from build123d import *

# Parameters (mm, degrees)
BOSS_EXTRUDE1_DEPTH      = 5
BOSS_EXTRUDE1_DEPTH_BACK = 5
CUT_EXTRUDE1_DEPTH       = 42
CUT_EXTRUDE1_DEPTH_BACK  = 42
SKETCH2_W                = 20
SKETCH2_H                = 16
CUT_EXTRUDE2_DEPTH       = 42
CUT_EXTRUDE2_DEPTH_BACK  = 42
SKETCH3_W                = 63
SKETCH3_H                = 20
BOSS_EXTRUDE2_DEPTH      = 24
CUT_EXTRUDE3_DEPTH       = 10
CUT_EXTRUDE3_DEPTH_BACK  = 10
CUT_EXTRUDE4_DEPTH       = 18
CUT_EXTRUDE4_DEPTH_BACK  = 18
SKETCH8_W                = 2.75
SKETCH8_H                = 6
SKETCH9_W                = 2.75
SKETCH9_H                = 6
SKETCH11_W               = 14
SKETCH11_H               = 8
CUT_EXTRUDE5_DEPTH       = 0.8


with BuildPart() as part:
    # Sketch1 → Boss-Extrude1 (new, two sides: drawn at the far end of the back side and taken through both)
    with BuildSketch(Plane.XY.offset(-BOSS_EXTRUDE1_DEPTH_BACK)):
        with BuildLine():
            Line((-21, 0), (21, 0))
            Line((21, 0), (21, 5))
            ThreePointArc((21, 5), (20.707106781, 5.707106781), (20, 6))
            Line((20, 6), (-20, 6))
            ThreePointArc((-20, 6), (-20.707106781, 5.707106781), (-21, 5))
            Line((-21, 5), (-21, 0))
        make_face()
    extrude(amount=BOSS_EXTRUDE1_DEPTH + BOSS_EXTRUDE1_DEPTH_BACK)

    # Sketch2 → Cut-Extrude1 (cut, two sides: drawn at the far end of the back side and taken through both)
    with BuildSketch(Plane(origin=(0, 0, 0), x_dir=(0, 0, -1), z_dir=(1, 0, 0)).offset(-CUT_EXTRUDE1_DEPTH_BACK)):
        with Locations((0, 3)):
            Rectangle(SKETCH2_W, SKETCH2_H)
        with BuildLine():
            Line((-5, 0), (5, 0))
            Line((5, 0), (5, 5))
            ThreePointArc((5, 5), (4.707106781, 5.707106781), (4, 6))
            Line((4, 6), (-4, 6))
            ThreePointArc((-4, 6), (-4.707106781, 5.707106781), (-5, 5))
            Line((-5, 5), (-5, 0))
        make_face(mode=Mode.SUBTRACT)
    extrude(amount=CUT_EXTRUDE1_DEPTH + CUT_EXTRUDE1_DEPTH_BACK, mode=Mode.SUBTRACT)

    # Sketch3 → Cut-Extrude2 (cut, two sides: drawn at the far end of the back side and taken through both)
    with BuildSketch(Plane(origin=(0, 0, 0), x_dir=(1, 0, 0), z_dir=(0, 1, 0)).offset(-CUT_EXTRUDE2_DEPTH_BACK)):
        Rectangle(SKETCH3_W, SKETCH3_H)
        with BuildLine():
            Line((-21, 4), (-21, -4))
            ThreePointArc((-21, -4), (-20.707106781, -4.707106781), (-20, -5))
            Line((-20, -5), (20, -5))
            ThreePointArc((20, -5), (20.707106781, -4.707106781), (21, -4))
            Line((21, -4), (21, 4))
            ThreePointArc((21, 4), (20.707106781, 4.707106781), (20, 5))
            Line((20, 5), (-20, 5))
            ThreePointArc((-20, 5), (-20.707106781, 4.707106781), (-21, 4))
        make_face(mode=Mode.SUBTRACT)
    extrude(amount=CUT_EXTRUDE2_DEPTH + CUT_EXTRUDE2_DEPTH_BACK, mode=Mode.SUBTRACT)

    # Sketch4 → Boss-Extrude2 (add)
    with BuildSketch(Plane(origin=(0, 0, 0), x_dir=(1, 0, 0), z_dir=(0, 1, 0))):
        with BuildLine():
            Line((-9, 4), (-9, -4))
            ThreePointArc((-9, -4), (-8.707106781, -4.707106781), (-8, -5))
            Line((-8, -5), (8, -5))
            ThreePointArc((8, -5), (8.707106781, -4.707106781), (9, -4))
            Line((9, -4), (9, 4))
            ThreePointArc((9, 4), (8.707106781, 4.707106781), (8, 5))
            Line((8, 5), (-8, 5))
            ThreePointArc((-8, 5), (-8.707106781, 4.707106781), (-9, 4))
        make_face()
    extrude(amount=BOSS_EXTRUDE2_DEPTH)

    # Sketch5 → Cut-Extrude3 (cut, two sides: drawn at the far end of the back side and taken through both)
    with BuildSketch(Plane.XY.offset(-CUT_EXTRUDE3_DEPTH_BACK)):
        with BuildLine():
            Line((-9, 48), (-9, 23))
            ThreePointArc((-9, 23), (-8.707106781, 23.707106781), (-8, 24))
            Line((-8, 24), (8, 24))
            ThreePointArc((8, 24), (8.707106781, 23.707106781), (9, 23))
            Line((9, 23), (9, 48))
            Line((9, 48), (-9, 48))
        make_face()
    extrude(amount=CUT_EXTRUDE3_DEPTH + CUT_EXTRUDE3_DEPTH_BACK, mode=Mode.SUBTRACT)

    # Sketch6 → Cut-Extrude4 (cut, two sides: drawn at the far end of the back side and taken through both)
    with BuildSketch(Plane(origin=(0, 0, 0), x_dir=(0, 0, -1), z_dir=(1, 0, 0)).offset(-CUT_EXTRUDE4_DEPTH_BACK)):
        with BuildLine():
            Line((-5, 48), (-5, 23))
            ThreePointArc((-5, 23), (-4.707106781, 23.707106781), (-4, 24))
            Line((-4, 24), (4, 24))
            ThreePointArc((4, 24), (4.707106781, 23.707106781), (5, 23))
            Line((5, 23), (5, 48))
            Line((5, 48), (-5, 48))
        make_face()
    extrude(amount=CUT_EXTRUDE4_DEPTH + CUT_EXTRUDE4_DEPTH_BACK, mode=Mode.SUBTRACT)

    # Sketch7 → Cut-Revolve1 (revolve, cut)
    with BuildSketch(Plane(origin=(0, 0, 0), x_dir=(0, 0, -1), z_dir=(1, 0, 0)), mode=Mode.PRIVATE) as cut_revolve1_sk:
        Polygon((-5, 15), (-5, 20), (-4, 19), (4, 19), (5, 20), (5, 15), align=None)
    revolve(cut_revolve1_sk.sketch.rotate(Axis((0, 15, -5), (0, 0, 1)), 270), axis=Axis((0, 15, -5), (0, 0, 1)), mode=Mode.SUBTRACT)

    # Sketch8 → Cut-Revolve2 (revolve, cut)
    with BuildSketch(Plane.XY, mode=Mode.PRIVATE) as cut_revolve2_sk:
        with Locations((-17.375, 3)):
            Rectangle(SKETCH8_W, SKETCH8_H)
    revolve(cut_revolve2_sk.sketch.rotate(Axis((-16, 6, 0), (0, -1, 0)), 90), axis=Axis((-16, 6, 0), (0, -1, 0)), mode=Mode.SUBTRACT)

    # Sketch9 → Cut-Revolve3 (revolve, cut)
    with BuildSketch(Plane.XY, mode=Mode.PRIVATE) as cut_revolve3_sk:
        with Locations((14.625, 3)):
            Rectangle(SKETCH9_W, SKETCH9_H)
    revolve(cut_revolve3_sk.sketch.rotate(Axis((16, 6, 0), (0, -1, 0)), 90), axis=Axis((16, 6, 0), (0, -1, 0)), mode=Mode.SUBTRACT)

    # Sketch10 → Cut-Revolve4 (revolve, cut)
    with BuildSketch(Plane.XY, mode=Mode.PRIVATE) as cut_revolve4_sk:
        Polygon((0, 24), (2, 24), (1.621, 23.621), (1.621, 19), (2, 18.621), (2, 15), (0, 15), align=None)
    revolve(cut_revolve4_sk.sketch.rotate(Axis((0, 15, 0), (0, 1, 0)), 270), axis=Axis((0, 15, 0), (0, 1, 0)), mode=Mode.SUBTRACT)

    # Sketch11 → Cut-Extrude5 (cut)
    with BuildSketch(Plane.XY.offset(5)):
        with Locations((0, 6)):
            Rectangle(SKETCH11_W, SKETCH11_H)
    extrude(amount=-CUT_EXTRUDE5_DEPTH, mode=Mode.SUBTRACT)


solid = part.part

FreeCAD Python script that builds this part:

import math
import FreeCAD as App
import Part
import Sketcher

V = App.Vector


def add_polygon(sketch, points):
    """Adds a closed chain of lines whose ends are joined by coincident constraints."""
    first, n = sketch.GeometryCount, len(points)
    for a, b in zip(points, points[1:] + points[:1]):
        sketch.addGeometry(Part.LineSegment(App.Vector(*a, 0), App.Vector(*b, 0)), False)
    for i in range(n):
        sketch.addConstraint(Sketcher.Constraint("Coincident", first + i, 2, first + (i + 1) % n, 1))

doc = App.newDocument("Part")
params = doc.addObject("Spreadsheet::Sheet", "Params")
for row, (alias, value) in enumerate([
    ("sketch1_radius", "1 mm"),
    ("sketch1_width", "42 mm"),
    ("sketch1_height", "5 mm"),
    ("pad1_length", "5 mm"),
    ("pad1_length2", "5 mm"),
    ("sketch2_radius", "1 mm"),
    ("sketch2_width", "16 mm"),
    ("sketch2_width2", "5 mm"),
    ("sketch2_height", "20 mm"),
    ("sketch2_height2", "10 mm"),
    ("sketch3_radius", "1 mm"),
    ("sketch3_width", "63 mm"),
    ("sketch3_width2", "40 mm"),
    ("sketch3_height", "20 mm"),
    ("sketch3_height2", "8 mm"),
    ("sketch4_radius", "1 mm"),
    ("sketch4_width", "16 mm"),
    ("sketch4_height", "8 mm"),
    ("pad2_length", "24 mm"),
    ("sketch5_radius", "1 mm"),
    ("sketch5_width", "16 mm"),
    ("sketch5_height", "25 mm"),
    ("sketch6_radius", "1 mm"),
    ("sketch6_width", "25 mm"),
    ("sketch6_height", "8 mm"),
    ("sketch7_width", "5 mm"),
    ("sketch7_height", "10 mm"),
    ("sketch7_height2", "8 mm"),
    ("groove_angle", "360 deg"),
    ("sketch8_height", "6 mm"),
    ("sketch8_width", "2.75 mm"),
    ("groove2_angle", "360 deg"),
    ("sketch9_height", "6 mm"),
    ("sketch9_width", "2.75 mm"),
    ("groove3_angle", "360 deg"),
    ("sketch10_width", "2 mm"),
    ("sketch10_height", "9 mm"),
    ("groove4_angle", "360 deg"),
    ("sketch11_width", "14 mm"),
    ("sketch11_height", "8 mm"),
    ("pocket5_length", "0.8 mm"),
], start=1):
    params.set(f"A{row}", alias)
    params.set(f"B{row}", "=" + value)
    params.setAlias(f"B{row}", alias)

body = doc.addObject("PartDesign::Body", "Body")

# Sketch on XY plane
sketch1 = body.newObject("Sketcher::SketchObject", "Sketch")
sketch1.AttachmentSupport = (doc.getObject("XY_Plane"), [""])
sketch1.MapMode = "FlatFace"
sketch1.addGeometry([
    Part.LineSegment(V(-21, 0, 0), V(21, 0, 0)),  # 0
    Part.LineSegment(V(21, 0, 0), V(21, 5, 0)),  # 1
    Part.ArcOfCircle(Part.Circle(V(20, 5, 0), V(0, 0, 1), 1), math.radians(0), math.radians(90)),  # 2
    Part.LineSegment(V(20, 6, 0), V(-20, 6, 0)),  # 3
    Part.ArcOfCircle(Part.Circle(V(-20, 5, 0), V(0, 0, 1), 1), math.radians(90), math.radians(180)),  # 4
    Part.LineSegment(V(-21, 5, 0), V(-21, 0, 0)),  # 5
], False)
sketch1.addConstraint([
    Sketcher.Constraint("Coincident", 0, 2, 1, 1),
    Sketcher.Constraint("Tangent", 1, 2, 2, 1),
    Sketcher.Constraint("Tangent", 2, 2, 3, 1),
    Sketcher.Constraint("Tangent", 3, 2, 4, 1),
    Sketcher.Constraint("Tangent", 4, 2, 5, 1),
    Sketcher.Constraint("Coincident", 5, 2, 0, 1),
    Sketcher.Constraint("Horizontal", 0),
    Sketcher.Constraint("Vertical", 1),
    Sketcher.Constraint("Horizontal", 3),
    Sketcher.Constraint("Vertical", 5),
    Sketcher.Constraint("Equal", 2, 4),
    Sketcher.Constraint("Symmetric", 0, 2, 5, 2, -1, 1),
    Sketcher.Constraint("Radius", 2, 1.0),
    Sketcher.Constraint("DistanceX", 0, 1, 0, 2, 42.0),
    Sketcher.Constraint("DistanceY", 1, 1, 1, 2, 5.0),
])
sketch1.setExpression("Constraints[12]", "Params.sketch1_radius")
sketch1.setExpression("Constraints[13]", "Params.sketch1_width")
sketch1.setExpression("Constraints[14]", "Params.sketch1_height")
pad1 = body.newObject("PartDesign::Pad", "Pad")
pad1.Profile = sketch1
pad1.Type = "TwoLengths"
pad1.setExpression("Length", "Params.pad1_length")
pad1.setExpression("Length2", "Params.pad1_length2")

# Sketch on YZ plane
sketch2 = body.newObject("Sketcher::SketchObject", "Sketch001")
sketch2.AttachmentSupport = (doc.getObject("YZ_Plane"), [""])
sketch2.MapMode = "FlatFace"
add_polygon(sketch2, [(11, 10), (-5, 10), (-5, -10), (11, -10)])  # lines 0-3
sketch2.addGeometry(Part.LineSegment(V(0, -5, 0), V(0, 5, 0)), False)  # 4
sketch2.addGeometry(Part.LineSegment(V(0, 5, 0), V(5, 5, 0)), False)  # 5
sketch2.addGeometry(Part.ArcOfCircle(Part.Circle(V(5, 4, 0), V(0, 0, 1), 1), math.radians(0), math.radians(90)), False)  # 6
sketch2.addGeometry(Part.LineSegment(V(6, 4, 0), V(6, -4, 0)), False)  # 7
sketch2.addGeometry(Part.ArcOfCircle(Part.Circle(V(5, -4, 0), V(0, 0, 1), 1), math.radians(-90), math.radians(0)), False)  # 8
sketch2.addGeometry(Part.LineSegment(V(5, -5, 0), V(0, -5, 0)), False)  # 9
sketch2.addConstraint([
    Sketcher.Constraint("Coincident", 4, 2, 5, 1),
    Sketcher.Constraint("Tangent", 5, 2, 6, 2),
    Sketcher.Constraint("Tangent", 6, 1, 7, 1),
    Sketcher.Constraint("Tangent", 7, 2, 8, 2),
    Sketcher.Constraint("Tangent", 8, 1, 9, 1),
    Sketcher.Constraint("Coincident", 9, 2, 4, 1),
    Sketcher.Constraint("Horizontal", 0),
    Sketcher.Constraint("Vertical", 1),
    Sketcher.Constraint("Horizontal", 2),
    Sketcher.Constraint("Vertical", 3),
    Sketcher.Constraint("Vertical", 4),
    Sketcher.Constraint("Horizontal", 5),
    Sketcher.Constraint("Vertical", 7),
    Sketcher.Constraint("Horizontal", 9),
    Sketcher.Constraint("Equal", 6, 8),
    Sketcher.Constraint("Symmetric", 4, 2, 9, 2, -1, 1),
    Sketcher.Constraint("Radius", 6, 1.0),
    Sketcher.Constraint("DistanceX", 0, 2, 0, 1, 16.0),
    Sketcher.Constraint("DistanceX", 5, 1, 5, 2, 5.0),
    Sketcher.Constraint("DistanceY", 1, 2, 1, 1, 20.0),
    Sketcher.Constraint("DistanceY", 4, 1, 4, 2, 10.0),
    Sketcher.Constraint("DistanceX", 0, 2, -1, 1, 5.0),
    Sketcher.Constraint("DistanceY", -1, 1, 0, 2, 10.0),
])
sketch2.setExpression("Constraints[20]", "Params.sketch2_radius")
sketch2.setExpression("Constraints[21]", "Params.sketch2_width")
sketch2.setExpression("Constraints[22]", "Params.sketch2_width2")
sketch2.setExpression("Constraints[23]", "Params.sketch2_height")
sketch2.setExpression("Constraints[24]", "Params.sketch2_height2")
pocket1 = body.newObject("PartDesign::Pocket", "Pocket")
pocket1.Profile = sketch2
pocket1.Type = "ThroughAll"
pocket1.Midplane = True

# Sketch on XZ plane
sketch3 = body.newObject("Sketcher::SketchObject", "Sketch002")
sketch3.AttachmentSupport = (doc.getObject("XZ_Plane"), [""])
sketch3.MapMode = "FlatFace"
add_polygon(sketch3, [(-31.5, -10), (-31.5, 10), (31.5, 10), (31.5, -10)])  # lines 0-3
sketch3.addGeometry(Part.LineSegment(V(-21, 4, 0), V(-21, -4, 0)), False)  # 4
sketch3.addGeometry(Part.ArcOfCircle(Part.Circle(V(-20, -4, 0), V(0, 0, 1), 1), math.radians(-180), math.radians(-90)), False)  # 5
sketch3.addGeometry(Part.LineSegment(V(-20, -5, 0), V(20, -5, 0)), False)  # 6
sketch3.addGeometry(Part.ArcOfCircle(Part.Circle(V(20, -4, 0), V(0, 0, 1), 1), math.radians(-90), math.radians(0)), False)  # 7
sketch3.addGeometry(Part.LineSegment(V(21, -4, 0), V(21, 4, 0)), False)  # 8
sketch3.addGeometry(Part.ArcOfCircle(Part.Circle(V(20, 4, 0), V(0, 0, 1), 1), math.radians(0), math.radians(90)), False)  # 9
sketch3.addGeometry(Part.LineSegment(V(20, 5, 0), V(-20, 5, 0)), False)  # 10
sketch3.addGeometry(Part.ArcOfCircle(Part.Circle(V(-20, 4, 0), V(0, 0, 1), 1), math.radians(90), math.radians(180)), False)  # 11
sketch3.addConstraint([
    Sketcher.Constraint("Tangent", 4, 2, 5, 1),
    Sketcher.Constraint("Tangent", 5, 2, 6, 1),
    Sketcher.Constraint("Tangent", 6, 2, 7, 1),
    Sketcher.Constraint("Tangent", 7, 2, 8, 1),
    Sketcher.Constraint("Tangent", 8, 2, 9, 1),
    Sketcher.Constraint("Tangent", 9, 2, 10, 1),
    Sketcher.Constraint("Tangent", 10, 2, 11, 1),
    Sketcher.Constraint("Tangent", 11, 2, 4, 1),
    Sketcher.Constraint("Vertical", 0),
    Sketcher.Constraint("Horizontal", 1),
    Sketcher.Constraint("Vertical", 2),
    Sketcher.Constraint("Horizontal", 3),
    Sketcher.Constraint("Vertical", 4),
    Sketcher.Constraint("Horizontal", 6),
    Sketcher.Constraint("Vertical", 8),
    Sketcher.Constraint("Horizontal", 10),
    Sketcher.Constraint("Equal", 5, 7),
    Sketcher.Constraint("Equal", 7, 9),
    Sketcher.Constraint("Equal", 9, 11),
    Sketcher.Constraint("Symmetric", 5, 3, 9, 3, -1, 1),
    Sketcher.Constraint("Symmetric", 0, 2, 2, 2, -1, 1),
    Sketcher.Constraint("Radius", 5, 1.0),
    Sketcher.Constraint("DistanceX", 1, 1, 1, 2, 63.0),
    Sketcher.Constraint("DistanceX", 6, 1, 6, 2, 40.0),
    Sketcher.Constraint("DistanceY", 0, 1, 0, 2, 20.0),
    Sketcher.Constraint("DistanceY", 4, 2, 4, 1, 8.0),
])
sketch3.setExpression("Constraints[25]", "Params.sketch3_radius")
sketch3.setExpression("Constraints[26]", "Params.sketch3_width")
sketch3.setExpression("Constraints[27]", "Params.sketch3_width2")
sketch3.setExpression("Constraints[28]", "Params.sketch3_height")
sketch3.setExpression("Constraints[29]", "Params.sketch3_height2")
pocket2 = body.newObject("PartDesign::Pocket", "Pocket001")
pocket2.Profile = sketch3
pocket2.Type = "ThroughAll"
pocket2.Midplane = True

# Sketch on XZ plane
sketch4 = body.newObject("Sketcher::SketchObject", "Sketch003")
sketch4.AttachmentSupport = (doc.getObject("XZ_Plane"), [""])
sketch4.MapMode = "FlatFace"
sketch4.addGeometry([
    Part.LineSegment(V(-9, -4, 0), V(-9, 4, 0)),  # 0
    Part.ArcOfCircle(Part.Circle(V(-8, 4, 0), V(0, 0, 1), 1), math.radians(90), math.radians(180)),  # 1
    Part.LineSegment(V(-8, 5, 0), V(8, 5, 0)),  # 2
    Part.ArcOfCircle(Part.Circle(V(8, 4, 0), V(0, 0, 1), 1), math.radians(0), math.radians(90)),  # 3
    Part.LineSegment(V(9, 4, 0), V(9, -4, 0)),  # 4
    Part.ArcOfCircle(Part.Circle(V(8, -4, 0), V(0, 0, 1), 1), math.radians(-90), math.radians(0)),  # 5
    Part.LineSegment(V(8, -5, 0), V(-8, -5, 0)),  # 6
    Part.ArcOfCircle(Part.Circle(V(-8, -4, 0), V(0, 0, 1), 1), math.radians(-180), math.radians(-90)),  # 7
], False)
sketch4.addConstraint([
    Sketcher.Constraint("Tangent", 0, 2, 1, 2),
    Sketcher.Constraint("Tangent", 1, 1, 2, 1),
    Sketcher.Constraint("Tangent", 2, 2, 3, 2),
    Sketcher.Constraint("Tangent", 3, 1, 4, 1),
    Sketcher.Constraint("Tangent", 4, 2, 5, 2),
    Sketcher.Constraint("Tangent", 5, 1, 6, 1),
    Sketcher.Constraint("Tangent", 6, 2, 7, 2),
    Sketcher.Constraint("Tangent", 7, 1, 0, 1),
    Sketcher.Constraint("Vertical", 0),
    Sketcher.Constraint("Horizontal", 2),
    Sketcher.Constraint("Vertical", 4),
    Sketcher.Constraint("Horizontal", 6),
    Sketcher.Constraint("Equal", 1, 3),
    Sketcher.Constraint("Equal", 3, 5),
    Sketcher.Constraint("Equal", 5, 7),
    Sketcher.Constraint("Symmetric", 1, 3, 5, 3, -1, 1),
    Sketcher.Constraint("Radius", 1, 1.0),
    Sketcher.Constraint("DistanceX", 2, 1, 2, 2, 16.0),
    Sketcher.Constraint("DistanceY", 0, 1, 0, 2, 8.0),
])
sketch4.setExpression("Constraints[16]", "Params.sketch4_radius")
sketch4.setExpression("Constraints[17]", "Params.sketch4_width")
sketch4.setExpression("Constraints[18]", "Params.sketch4_height")
pad2 = body.newObject("PartDesign::Pad", "Pad001")
pad2.Profile = sketch4
pad2.setExpression("Length", "Params.pad2_length")
pad2.Reversed = True

# Sketch on XY plane
sketch5 = body.newObject("Sketcher::SketchObject", "Sketch004")
sketch5.AttachmentSupport = (doc.getObject("XY_Plane"), [""])
sketch5.MapMode = "FlatFace"
sketch5.addGeometry([
    Part.LineSegment(V(-9, 48, 0), V(-9, 23, 0)),  # 0
    Part.ArcOfCircle(Part.Circle(V(-8, 23, 0), V(0, 0, 1), 1), math.radians(90), math.radians(180)),  # 1
    Part.LineSegment(V(-8, 24, 0), V(8, 24, 0)),  # 2
    Part.ArcOfCircle(Part.Circle(V(8, 23, 0), V(0, 0, 1), 1), math.radians(0), math.radians(90)),  # 3
    Part.LineSegment(V(9, 23, 0), V(9, 48, 0)),  # 4
    Part.LineSegment(V(9, 48, 0), V(-9, 48, 0)),  # 5
], False)
sketch5.addConstraint([
    Sketcher.Constraint("Tangent", 0, 2, 1, 2),
    Sketcher.Constraint("Tangent", 1, 1, 2, 1),
    Sketcher.Constraint("Tangent", 2, 2, 3, 2),
    Sketcher.Constraint("Tangent", 3, 1, 4, 1),
    Sketcher.Constraint("Coincident", 4, 2, 5, 1),
    Sketcher.Constraint("Coincident", 5, 2, 0, 1),
    Sketcher.Constraint("Vertical", 0),
    Sketcher.Constraint("Horizontal", 2),
    Sketcher.Constraint("Vertical", 4),
    Sketcher.Constraint("Horizontal", 5),
    Sketcher.Constraint("Equal", 1, 3),
    Sketcher.Constraint("Radius", 1, 1.0),
    Sketcher.Constraint("DistanceX", 2, 1, 2, 2, 16.0),
    Sketcher.Constraint("DistanceY", 0, 2, 0, 1, 25.0),
    Sketcher.Constraint("DistanceX", 1, 3, -1, 1, 8.0),
    Sketcher.Constraint("DistanceY", -1, 1, 1, 3, 23.0),
])
sketch5.setExpression("Constraints[11]", "Params.sketch5_radius")
sketch5.setExpression("Constraints[12]", "Params.sketch5_width")
sketch5.setExpression("Constraints[13]", "Params.sketch5_height")
pocket3 = body.newObject("PartDesign::Pocket", "Pocket002")
pocket3.Profile = sketch5
pocket3.Type = "ThroughAll"
pocket3.Midplane = True

# Sketch on YZ plane
sketch6 = body.newObject("Sketcher::SketchObject", "Sketch005")
sketch6.AttachmentSupport = (doc.getObject("YZ_Plane"), [""])
sketch6.MapMode = "FlatFace"
sketch6.addGeometry([
    Part.LineSegment(V(48, 5, 0), V(23, 5, 0)),  # 0
    Part.ArcOfCircle(Part.Circle(V(23, 4, 0), V(0, 0, 1), 1), math.radians(0), math.radians(90)),  # 1
    Part.LineSegment(V(24, 4, 0), V(24, -4, 0)),  # 2
    Part.ArcOfCircle(Part.Circle(V(23, -4, 0), V(0, 0, 1), 1), math.radians(-90), math.radians(0)),  # 3
    Part.LineSegment(V(23, -5, 0), V(48, -5, 0)),  # 4
    Part.LineSegment(V(48, -5, 0), V(48, 5, 0)),  # 5
], False)
sketch6.addConstraint([
    Sketcher.Constraint("Tangent", 0, 2, 1, 2),
    Sketcher.Constraint("Tangent", 1, 1, 2, 1),
    Sketcher.Constraint("Tangent", 2, 2, 3, 2),
    Sketcher.Constraint("Tangent", 3, 1, 4, 1),
    Sketcher.Constraint("Coincident", 4, 2, 5, 1),
    Sketcher.Constraint("Coincident", 5, 2, 0, 1),
    Sketcher.Constraint("Horizontal", 0),
    Sketcher.Constraint("Vertical", 2),
    Sketcher.Constraint("Horizontal", 4),
    Sketcher.Constraint("Vertical", 5),
    Sketcher.Constraint("Equal", 1, 3),
    Sketcher.Constraint("Radius", 1, 1.0),
    Sketcher.Constraint("DistanceX", 0, 2, 0, 1, 25.0),
    Sketcher.Constraint("DistanceY", 2, 2, 2, 1, 8.0),
    Sketcher.Constraint("DistanceX", -1, 1, 1, 3, 23.0),
    Sketcher.Constraint("DistanceY", -1, 1, 1, 3, 4.0),
])
sketch6.setExpression("Constraints[11]", "Params.sketch6_radius")
sketch6.setExpression("Constraints[12]", "Params.sketch6_width")
sketch6.setExpression("Constraints[13]", "Params.sketch6_height")
pocket4 = body.newObject("PartDesign::Pocket", "Pocket003")
pocket4.Profile = sketch6
pocket4.Type = "ThroughAll"
pocket4.Midplane = True

# Sketch on YZ plane
sketch7 = body.newObject("Sketcher::SketchObject", "Sketch006")
sketch7.AttachmentSupport = (doc.getObject("YZ_Plane"), [""])
sketch7.MapMode = "FlatFace"
add_polygon(sketch7, [(20, 5), (15, 5), (15, -5), (20, -5), (19, -4), (19, 4)])  # lines 0-5
sketch7.addGeometry(Part.LineSegment(V(15, -5, 0), V(15, 5, 0)), True)  # axis
sketch7.addConstraint([
    Sketcher.Constraint("Horizontal", 0),
    Sketcher.Constraint("Vertical", 1),
    Sketcher.Constraint("Horizontal", 2),
    Sketcher.Constraint("Vertical", 4),
    Sketcher.Constraint("Vertical", 6),
    Sketcher.Constraint("Coincident", 6, 1, 1, 2),
    Sketcher.Constraint("Symmetric", 2, 2, 5, 2, -1),
    Sketcher.Constraint("Perpendicular", 3, 5),
    Sketcher.Constraint("Horizontal", 5, 2, 6, 2),
    Sketcher.Constraint("Equal", 3, 5),
    Sketcher.Constraint("DistanceX", 0, 2, 0, 1, 5.0),
    Sketcher.Constraint("DistanceY", 1, 2, 1, 1, 10.0),
    Sketcher.Constraint("DistanceY", 4, 1, 4, 2, 8.0),
    Sketcher.Constraint("DistanceX", -1, 1, 0, 2, 15.0),
])
sketch7.setExpression("Constraints[16]", "Params.sketch7_width")
sketch7.setExpression("Constraints[17]", "Params.sketch7_height")
sketch7.setExpression("Constraints[18]", "Params.sketch7_height2")
groove = body.newObject("PartDesign::Groove", "Groove")
groove.Profile = sketch7
groove.ReferenceAxis = (sketch7, ["Axis0"])
groove.setExpression("Angle", "Params.groove_angle")

# Sketch on XY plane
sketch8 = body.newObject("Sketcher::SketchObject", "Sketch007")
sketch8.AttachmentSupport = (doc.getObject("XY_Plane"), [""])
sketch8.MapMode = "FlatFace"
add_polygon(sketch8, [(-18.8, 6), (-18.8, 0), (-16, 0), (-16, 6)])  # lines 0-3
sketch8.addGeometry(Part.LineSegment(V(-16, 6, 0), V(-16, 0, 0)), True)  # axis
sketch8.addConstraint([
    Sketcher.Constraint("Vertical", 0),
    Sketcher.Constraint("Horizontal", 1),
    Sketcher.Constraint("Vertical", 2),
    Sketcher.Constraint("Horizontal", 3),
    Sketcher.Constraint("Vertical", 4),
    Sketcher.Constraint("Coincident", 4, 1, 2, 2),
    Sketcher.Constraint("PointOnObject", 0, 2, -1),
    Sketcher.Constraint("PointOnObject", 4, 2, -1),
    Sketcher.Constraint("DistanceY", 0, 2, 0, 1, 6.0),
    Sketcher.Constraint("DistanceX", 1, 2, -1, 1, 16.0),
    Sketcher.Constraint("DistanceX", 1, 1, 1, 2, 2.75),
])
sketch8.setExpression("Constraints[12]", "Params.sketch8_height")
sketch8.setExpression("Constraints[14]", "Params.sketch8_width")
groove2 = body.newObject("PartDesign::Groove", "Groove001")
groove2.Profile = sketch8
groove2.ReferenceAxis = (sketch8, ["Axis0"])
groove2.setExpression("Angle", "Params.groove2_angle")

# Sketch on XY plane
sketch9 = body.newObject("Sketcher::SketchObject", "Sketch008")
sketch9.AttachmentSupport = (doc.getObject("XY_Plane"), [""])
sketch9.MapMode = "FlatFace"
add_polygon(sketch9, [(13.2, 6), (13.2, 0), (16, 0), (16, 6)])  # lines 0-3
sketch9.addGeometry(Part.LineSegment(V(16, 6, 0), V(16, 0, 0)), True)  # axis
sketch9.addConstraint([
    Sketcher.Constraint("Vertical", 0),
    Sketcher.Constraint("Horizontal", 1),
    Sketcher.Constraint("Vertical", 2),
    Sketcher.Constraint("Horizontal", 3),
    Sketcher.Constraint("Vertical", 4),
    Sketcher.Constraint("Coincident", 4, 1, 2, 2),
    Sketcher.Constraint("PointOnObject", 0, 2, -1),
    Sketcher.Constraint("PointOnObject", 4, 2, -1),
    Sketcher.Constraint("DistanceY", 0, 2, 0, 1, 6.0),
    Sketcher.Constraint("DistanceX", -1, 1, 1, 2, 16.0),
    Sketcher.Constraint("DistanceX", 1, 1, 1, 2, 2.75),
])
sketch9.setExpression("Constraints[12]", "Params.sketch9_height")
sketch9.setExpression("Constraints[14]", "Params.sketch9_width")
groove3 = body.newObject("PartDesign::Groove", "Groove002")
groove3.Profile = sketch9
groove3.ReferenceAxis = (sketch9, ["Axis0"])
groove3.setExpression("Angle", "Params.groove3_angle")

# Sketch on XY plane
sketch10 = body.newObject("Sketcher::SketchObject", "Sketch009")
sketch10.AttachmentSupport = (doc.getObject("XY_Plane"), [""])
sketch10.MapMode = "FlatFace"
add_polygon(sketch10, [(2, 24), (0, 24), (0, 15), (2, 15), (2, 18.6), (1.6, 19), (1.6, 23.6)])  # lines 0-6
sketch10.addConstraint([
    Sketcher.Constraint("Horizontal", 0),
    Sketcher.Constraint("Vertical", 1),
    Sketcher.Constraint("Horizontal", 2),
    Sketcher.Constraint("Vertical", 3),
    Sketcher.Constraint("Vertical", 5),
    Sketcher.Constraint("PointOnObject", 0, 2, -2),
    Sketcher.Constraint("Perpendicular", 4, 6),
    Sketcher.Constraint("Vertical", 3, 2, 6, 2),
    Sketcher.Constraint("Equal", 4, 6),
    Sketcher.Constraint("DistanceX", 0, 2, 0, 1, 2.0),
    Sketcher.Constraint("DistanceY", 1, 2, 1, 1, 9.0),
    Sketcher.Constraint("DistanceY", -1, 1, 0, 2, 24.0),
    Sketcher.Constraint("DistanceY", -1, 1, 4, 2, 19.0),
    Sketcher.Constraint("DistanceY", 3, 1, 3, 2, 3.621),
])
sketch10.setExpression("Constraints[16]", "Params.sketch10_width")
sketch10.setExpression("Constraints[17]", "Params.sketch10_height")
groove4 = body.newObject("PartDesign::Groove", "Groove003")
groove4.Profile = sketch10
groove4.ReferenceAxis = (sketch10, ["V_Axis"])
groove4.setExpression("Angle", "Params.groove4_angle")

# Sketch on XY plane
sketch11 = body.newObject("Sketcher::SketchObject", "Sketch010")
sketch11.AttachmentSupport = (doc.getObject("XY_Plane"), [""])
sketch11.MapMode = "FlatFace"
sketch11.AttachmentOffset = App.Placement(V(0, 0, 5), App.Rotation())
add_polygon(sketch11, [(-7, 10), (-7, 2), (7, 2), (7, 10)])  # lines 0-3
sketch11.addConstraint([
    Sketcher.Constraint("Vertical", 0),
    Sketcher.Constraint("Horizontal", 1),
    Sketcher.Constraint("Vertical", 2),
    Sketcher.Constraint("Horizontal", 3),
    Sketcher.Constraint("DistanceX", 1, 1, 1, 2, 14.0),
    Sketcher.Constraint("DistanceY", 0, 2, 0, 1, 8.0),
    Sketcher.Constraint("DistanceX", 0, 2, -1, 1, 7.0),
    Sketcher.Constraint("DistanceY", -1, 1, 0, 2, 2.0),
])
sketch11.setExpression("Constraints[8]", "Params.sketch11_width")
sketch11.setExpression("Constraints[9]", "Params.sketch11_height")
pocket5 = body.newObject("PartDesign::Pocket", "Pocket004")
pocket5.Profile = sketch11
pocket5.setExpression("Length", "Params.pocket5_length")

doc.recompute()
